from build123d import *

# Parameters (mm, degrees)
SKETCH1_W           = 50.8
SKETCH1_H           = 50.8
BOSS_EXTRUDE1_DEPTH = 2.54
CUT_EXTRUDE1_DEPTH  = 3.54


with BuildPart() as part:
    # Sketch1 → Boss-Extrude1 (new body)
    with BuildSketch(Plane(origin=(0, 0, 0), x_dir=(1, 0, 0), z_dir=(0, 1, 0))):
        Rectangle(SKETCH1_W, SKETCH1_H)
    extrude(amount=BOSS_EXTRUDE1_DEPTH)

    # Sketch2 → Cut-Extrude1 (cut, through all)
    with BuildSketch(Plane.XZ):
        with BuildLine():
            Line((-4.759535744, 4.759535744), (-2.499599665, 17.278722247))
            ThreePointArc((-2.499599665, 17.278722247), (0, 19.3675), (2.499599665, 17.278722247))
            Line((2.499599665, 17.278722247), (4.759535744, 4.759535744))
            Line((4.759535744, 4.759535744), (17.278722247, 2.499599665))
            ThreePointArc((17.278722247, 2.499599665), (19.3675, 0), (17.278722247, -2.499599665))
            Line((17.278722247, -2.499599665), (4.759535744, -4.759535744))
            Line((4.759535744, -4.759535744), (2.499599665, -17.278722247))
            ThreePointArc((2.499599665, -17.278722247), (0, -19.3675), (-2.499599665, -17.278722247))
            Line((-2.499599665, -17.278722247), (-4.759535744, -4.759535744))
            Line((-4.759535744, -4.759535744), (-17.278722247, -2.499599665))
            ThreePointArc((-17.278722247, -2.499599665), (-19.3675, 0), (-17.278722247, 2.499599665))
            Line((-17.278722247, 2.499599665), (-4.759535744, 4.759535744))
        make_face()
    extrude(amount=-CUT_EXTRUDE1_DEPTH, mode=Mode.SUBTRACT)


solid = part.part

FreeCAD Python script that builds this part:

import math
import FreeCAD as App
import Part
import Sketcher

V = App.Vector
Q = App.Units.Quantity

doc = App.newDocument("Part")
body = doc.addObject("PartDesign::Body", "Body")

# Sketch on XZ plane
sketch1 = body.newObject("Sketcher::SketchObject", "Sketch")
sketch1.AttachmentSupport = (doc.getObject("XZ_Plane"), [""])
sketch1.MapMode = "FlatFace"
sketch1.addGeometry([
    Part.LineSegment(V(-25, -25, 0), V(-25, 25, 0)),
    Part.LineSegment(V(-25, 25, 0), V(25, 25, 0)),
    Part.LineSegment(V(25, 25, 0), V(25, -25, 0)),
    Part.LineSegment(V(25, -25, 0), V(-25, -25, 0)),
], False)
sketch1.addConstraint([
    Sketcher.Constraint("Coincident", 0, 2, 1, 1),
    Sketcher.Constraint("Coincident", 1, 2, 2, 1),
    Sketcher.Constraint("Coincident", 2, 2, 3, 1),
    Sketcher.Constraint("Coincident", 3, 2, 0, 1),
    Sketcher.Constraint("Vertical", 0),
    Sketcher.Constraint("Horizontal", 1),
    Sketcher.Constraint("Vertical", 2),
    Sketcher.Constraint("Horizontal", 3),
    Sketcher.Constraint("Symmetric", 0, 2, 2, 2, -1, 1),
    Sketcher.Constraint("Equal", 3, 0),
    Sketcher.Constraint("DistanceX", 1, 1, 1, 2, Q("2 in")),
])
pad1 = body.newObject("PartDesign::Pad", "Pad")
pad1.Profile = sketch1
pad1.Length = Q("0.1 in")
pad1.Reversed = True

# Sketch on XZ plane
sketch2 = body.newObject("Sketcher::SketchObject", "Sketch001")
sketch2.AttachmentSupport = (doc.getObject("XZ_Plane"), [""])
sketch2.MapMode = "FlatFace"
sketch2.addGeometry([
    Part.LineSegment(V(-2.5, 17.3, 0), V(-4.8, 4.8, 0)),  # 0
    Part.LineSegment(V(-4.8, 4.8, 0), V(-17.3, 2.5, 0)),  # 1
    Part.ArcOfCircle(Part.Circle(V(-16.8, 0, 0), V(0, 0, 1), 2.5), math.radians(100), math.radians(260)),  # 2
    Part.LineSegment(V(-17.3, -2.5, 0), V(-4.8, -4.8, 0)),  # 3
    Part.LineSegment(V(-4.8, -4.8, 0), V(-2.5, -17.3, 0)),  # 4
    Part.ArcOfCircle(Part.Circle(V(0, -16.8, 0), V(0, 0, 1), 2.5), math.radians(-170), math.radians(-10)),  # 5
    Part.LineSegment(V(2.5, -17.3, 0), V(4.8, -4.8, 0)),  # 6
    Part.LineSegment(V(4.8, -4.8, 0), V(17.3, -2.5, 0)),  # 7
    Part.ArcOfCircle(Part.Circle(V(16.8, 0, 0), V(0, 0, 1), 2.5), math.radians(-80), math.radians(80)),  # 8
    Part.LineSegment(V(17.3, 2.5, 0), V(4.8, 4.8, 0)),  # 9
    Part.LineSegment(V(4.8, 4.8, 0), V(2.5, 17.3, 0)),  # 10
    Part.ArcOfCircle(Part.Circle(V(0, 16.8, 0), V(0, 0, 1), 2.5), math.radians(10), math.radians(170)),  # 11
], False)
sketch2.addConstraint([
    Sketcher.Constraint("Coincident", 0, 2, 1, 1),
    Sketcher.Constraint("Tangent", 1, 2, 2, 1),
    Sketcher.Constraint("Tangent", 2, 2, 3, 1),
    Sketcher.Constraint("Coincident", 3, 2, 4, 1),
    Sketcher.Constraint("Tangent", 4, 2, 5, 1),
    Sketcher.Constraint("Tangent", 5, 2, 6, 1),
    Sketcher.Constraint("Coincident", 6, 2, 7, 1),
    Sketcher.Constraint("Tangent", 7, 2, 8, 1),
    Sketcher.Constraint("Tangent", 8, 2, 9, 1),
    Sketcher.Constraint("Coincident", 9, 2, 10, 1),
    Sketcher.Constraint("Tangent", 10, 2, 11, 1),
    Sketcher.Constraint("Tangent", 11, 2, 0, 1),
    Sketcher.Constraint("Equal", 2, 5),
    Sketcher.Constraint("Equal", 5, 8),
    Sketcher.Constraint("Equal", 8, 11),
    Sketcher.Constraint("Symmetric", 2, 3, 8, 3, -1, 1),
    Sketcher.Constraint("Symmetric", 5, 3, 11, 3, -1, 1),
    Sketcher.Constraint("Symmetric", 0, 2, 6, 2, -1, 1),
    Sketcher.Constraint("Symmetric", 3, 2, 9, 2, -1, 1),
    Sketcher.Constraint("Symmetric", 4, 2, 5, 2, -2),
    Sketcher.Constraint("Symmetric", 2, 2, 7, 2, -2),
    Sketcher.Constraint("Perpendicular", 0, 3),
    Sketcher.Constraint("Equal", 0, 1),
    Sketcher.Constraint("Radius", 2, Q("0.1 in")),
    Sketcher.Constraint("DistanceX", 2, 3, 8, 3, Q("1.325 in")),
    Sketcher.Constraint("DistanceY", -1, 1, 1, 2, 2.4996),
])
pocket1 = body.newObject("PartDesign::Pocket", "Pocket")
pocket1.Profile = sketch2
pocket1.Type = "ThroughAll"

doc.recompute()
